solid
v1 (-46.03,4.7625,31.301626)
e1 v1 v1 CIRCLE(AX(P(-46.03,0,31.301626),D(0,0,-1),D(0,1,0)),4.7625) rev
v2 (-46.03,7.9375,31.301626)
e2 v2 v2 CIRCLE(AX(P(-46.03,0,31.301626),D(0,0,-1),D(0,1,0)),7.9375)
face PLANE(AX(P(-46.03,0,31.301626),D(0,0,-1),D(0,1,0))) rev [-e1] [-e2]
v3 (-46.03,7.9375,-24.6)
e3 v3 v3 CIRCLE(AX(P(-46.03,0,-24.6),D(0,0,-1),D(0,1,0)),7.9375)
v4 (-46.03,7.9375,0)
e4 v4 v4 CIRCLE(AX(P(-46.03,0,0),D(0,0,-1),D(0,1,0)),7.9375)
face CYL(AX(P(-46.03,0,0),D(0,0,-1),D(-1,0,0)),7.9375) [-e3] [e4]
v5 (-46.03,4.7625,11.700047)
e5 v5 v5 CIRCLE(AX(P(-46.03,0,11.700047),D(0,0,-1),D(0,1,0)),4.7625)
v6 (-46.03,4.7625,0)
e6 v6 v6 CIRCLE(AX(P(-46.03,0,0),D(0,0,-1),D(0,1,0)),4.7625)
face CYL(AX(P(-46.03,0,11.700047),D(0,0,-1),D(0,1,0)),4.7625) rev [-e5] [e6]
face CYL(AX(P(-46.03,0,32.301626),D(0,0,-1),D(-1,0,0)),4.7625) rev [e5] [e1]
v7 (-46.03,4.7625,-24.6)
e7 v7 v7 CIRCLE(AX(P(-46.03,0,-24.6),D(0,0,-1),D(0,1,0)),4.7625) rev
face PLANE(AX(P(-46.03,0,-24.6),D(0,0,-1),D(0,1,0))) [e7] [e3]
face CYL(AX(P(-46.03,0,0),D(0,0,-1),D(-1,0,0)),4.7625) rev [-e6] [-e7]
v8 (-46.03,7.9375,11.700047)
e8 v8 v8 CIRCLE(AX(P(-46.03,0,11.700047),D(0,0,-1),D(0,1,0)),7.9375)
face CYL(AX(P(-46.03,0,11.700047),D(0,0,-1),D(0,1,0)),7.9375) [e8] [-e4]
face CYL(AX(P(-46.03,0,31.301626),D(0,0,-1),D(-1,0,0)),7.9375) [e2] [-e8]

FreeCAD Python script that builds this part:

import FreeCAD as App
import Part
import Sketcher
from FreeCAD import Vector
Q = App.Units.Quantity

doc = App.newDocument("Part")
body = doc.addObject("PartDesign::Body", "Body")

sketch1 = body.newObject("Sketcher::SketchObject", "Sketch")
sketch1.AttachmentSupport = (doc.getObject("XY_Plane"), [""])
sketch1.MapMode = "FlatFace"
sketch1.AttachmentOffset = App.Placement(Vector(0, 0, -24.6), App.Rotation())
sketch1.addGeometry(Part.Circle(Vector(-46, 0, 0), Vector(0, 0, 1), 8), False)
sketch1.addConstraint([
    Sketcher.Constraint("PointOnObject", 0, 3, -1),
    Sketcher.Constraint("Diameter", 0, Q("0.625 in")),
    Sketcher.Constraint("DistanceX", 0, 3, -1, 1, 46.03),
])

sketch2 = body.newObject("Sketcher::SketchObject", "Sketch001")
sketch2.AttachmentSupport = (doc.getObject("XZ_Plane"), [""])
sketch2.MapMode = "FlatFace"
sketch2.addGeometry([
    Part.LineSegment(Vector(-46, -25, 0), Vector(-46, 12, 0)),
    Part.LineSegment(Vector(-46, 12, 0), Vector(-46, 31, 0)),
], False)
sketch2.addConstraint([
    Sketcher.Constraint("Coincident", 0, 2, 1, 1),
    Sketcher.Constraint("Vertical", 0),
    Sketcher.Constraint("Vertical", 1),
    Sketcher.Constraint("DistanceY", 1, 1, 1, 2, 19.60158),
    Sketcher.Constraint("DistanceX", 0, 1, -1, 1, 46.03),
    Sketcher.Constraint("DistanceY", 0, 1, -1, 1, 24.6),
    Sketcher.Constraint("DistanceY", 0, 1, 0, 2, 36.300047),
])
doc.recompute()

additivepipe = body.newObject("PartDesign::AdditivePipe", "AdditivePipe")
additivepipe.Profile = sketch1
additivepipe.Spine = (sketch2, ["Edge1", "Edge2"])

sketch3 = body.newObject("Sketcher::SketchObject", "Sketch002")
sketch3.AttachmentSupport = (doc.getObject("XY_Plane"), [""])
sketch3.MapMode = "FlatFace"
sketch3.AttachmentOffset = App.Placement(Vector(0, 0, -24.6), App.Rotation())
sketch3.addGeometry(Part.Circle(Vector(-46, 0, 0), Vector(0, 0, 1), 4.8), False)
sketch3.addConstraint([
    Sketcher.Constraint("PointOnObject", 0, 3, -1),
    Sketcher.Constraint("Diameter", 0, Q("0.375 in")),
    Sketcher.Constraint("DistanceX", 0, 3, -1, 1, 46.03),
])

sketch4 = body.newObject("Sketcher::SketchObject", "Sketch003")
sketch4.AttachmentSupport = (doc.getObject("XZ_Plane"), [""])
sketch4.MapMode = "FlatFace"
sketch4.addGeometry([
    Part.LineSegment(Vector(-46, -25, 0), Vector(-46, 12, 0)),
    Part.LineSegment(Vector(-46, 12, 0), Vector(-46, 31, 0)),
], False)
sketch4.addConstraint([
    Sketcher.Constraint("Coincident", 0, 2, 1, 1),
    Sketcher.Constraint("Vertical", 0),
    Sketcher.Constraint("Vertical", 1),
    Sketcher.Constraint("DistanceY", 1, 1, 1, 2, 19.60158),
    Sketcher.Constraint("DistanceX", 0, 1, -1, 1, 46.03),
    Sketcher.Constraint("DistanceY", 0, 1, -1, 1, 24.6),
    Sketcher.Constraint("DistanceY", 0, 1, 0, 2, 36.300047),
])
doc.recompute()

subtractivepipe = body.newObject("PartDesign::SubtractivePipe", "SubtractivePipe")
subtractivepipe.Profile = sketch3
subtractivepipe.Spine = (sketch4, ["Edge1", "Edge2"])

doc.recompute()
